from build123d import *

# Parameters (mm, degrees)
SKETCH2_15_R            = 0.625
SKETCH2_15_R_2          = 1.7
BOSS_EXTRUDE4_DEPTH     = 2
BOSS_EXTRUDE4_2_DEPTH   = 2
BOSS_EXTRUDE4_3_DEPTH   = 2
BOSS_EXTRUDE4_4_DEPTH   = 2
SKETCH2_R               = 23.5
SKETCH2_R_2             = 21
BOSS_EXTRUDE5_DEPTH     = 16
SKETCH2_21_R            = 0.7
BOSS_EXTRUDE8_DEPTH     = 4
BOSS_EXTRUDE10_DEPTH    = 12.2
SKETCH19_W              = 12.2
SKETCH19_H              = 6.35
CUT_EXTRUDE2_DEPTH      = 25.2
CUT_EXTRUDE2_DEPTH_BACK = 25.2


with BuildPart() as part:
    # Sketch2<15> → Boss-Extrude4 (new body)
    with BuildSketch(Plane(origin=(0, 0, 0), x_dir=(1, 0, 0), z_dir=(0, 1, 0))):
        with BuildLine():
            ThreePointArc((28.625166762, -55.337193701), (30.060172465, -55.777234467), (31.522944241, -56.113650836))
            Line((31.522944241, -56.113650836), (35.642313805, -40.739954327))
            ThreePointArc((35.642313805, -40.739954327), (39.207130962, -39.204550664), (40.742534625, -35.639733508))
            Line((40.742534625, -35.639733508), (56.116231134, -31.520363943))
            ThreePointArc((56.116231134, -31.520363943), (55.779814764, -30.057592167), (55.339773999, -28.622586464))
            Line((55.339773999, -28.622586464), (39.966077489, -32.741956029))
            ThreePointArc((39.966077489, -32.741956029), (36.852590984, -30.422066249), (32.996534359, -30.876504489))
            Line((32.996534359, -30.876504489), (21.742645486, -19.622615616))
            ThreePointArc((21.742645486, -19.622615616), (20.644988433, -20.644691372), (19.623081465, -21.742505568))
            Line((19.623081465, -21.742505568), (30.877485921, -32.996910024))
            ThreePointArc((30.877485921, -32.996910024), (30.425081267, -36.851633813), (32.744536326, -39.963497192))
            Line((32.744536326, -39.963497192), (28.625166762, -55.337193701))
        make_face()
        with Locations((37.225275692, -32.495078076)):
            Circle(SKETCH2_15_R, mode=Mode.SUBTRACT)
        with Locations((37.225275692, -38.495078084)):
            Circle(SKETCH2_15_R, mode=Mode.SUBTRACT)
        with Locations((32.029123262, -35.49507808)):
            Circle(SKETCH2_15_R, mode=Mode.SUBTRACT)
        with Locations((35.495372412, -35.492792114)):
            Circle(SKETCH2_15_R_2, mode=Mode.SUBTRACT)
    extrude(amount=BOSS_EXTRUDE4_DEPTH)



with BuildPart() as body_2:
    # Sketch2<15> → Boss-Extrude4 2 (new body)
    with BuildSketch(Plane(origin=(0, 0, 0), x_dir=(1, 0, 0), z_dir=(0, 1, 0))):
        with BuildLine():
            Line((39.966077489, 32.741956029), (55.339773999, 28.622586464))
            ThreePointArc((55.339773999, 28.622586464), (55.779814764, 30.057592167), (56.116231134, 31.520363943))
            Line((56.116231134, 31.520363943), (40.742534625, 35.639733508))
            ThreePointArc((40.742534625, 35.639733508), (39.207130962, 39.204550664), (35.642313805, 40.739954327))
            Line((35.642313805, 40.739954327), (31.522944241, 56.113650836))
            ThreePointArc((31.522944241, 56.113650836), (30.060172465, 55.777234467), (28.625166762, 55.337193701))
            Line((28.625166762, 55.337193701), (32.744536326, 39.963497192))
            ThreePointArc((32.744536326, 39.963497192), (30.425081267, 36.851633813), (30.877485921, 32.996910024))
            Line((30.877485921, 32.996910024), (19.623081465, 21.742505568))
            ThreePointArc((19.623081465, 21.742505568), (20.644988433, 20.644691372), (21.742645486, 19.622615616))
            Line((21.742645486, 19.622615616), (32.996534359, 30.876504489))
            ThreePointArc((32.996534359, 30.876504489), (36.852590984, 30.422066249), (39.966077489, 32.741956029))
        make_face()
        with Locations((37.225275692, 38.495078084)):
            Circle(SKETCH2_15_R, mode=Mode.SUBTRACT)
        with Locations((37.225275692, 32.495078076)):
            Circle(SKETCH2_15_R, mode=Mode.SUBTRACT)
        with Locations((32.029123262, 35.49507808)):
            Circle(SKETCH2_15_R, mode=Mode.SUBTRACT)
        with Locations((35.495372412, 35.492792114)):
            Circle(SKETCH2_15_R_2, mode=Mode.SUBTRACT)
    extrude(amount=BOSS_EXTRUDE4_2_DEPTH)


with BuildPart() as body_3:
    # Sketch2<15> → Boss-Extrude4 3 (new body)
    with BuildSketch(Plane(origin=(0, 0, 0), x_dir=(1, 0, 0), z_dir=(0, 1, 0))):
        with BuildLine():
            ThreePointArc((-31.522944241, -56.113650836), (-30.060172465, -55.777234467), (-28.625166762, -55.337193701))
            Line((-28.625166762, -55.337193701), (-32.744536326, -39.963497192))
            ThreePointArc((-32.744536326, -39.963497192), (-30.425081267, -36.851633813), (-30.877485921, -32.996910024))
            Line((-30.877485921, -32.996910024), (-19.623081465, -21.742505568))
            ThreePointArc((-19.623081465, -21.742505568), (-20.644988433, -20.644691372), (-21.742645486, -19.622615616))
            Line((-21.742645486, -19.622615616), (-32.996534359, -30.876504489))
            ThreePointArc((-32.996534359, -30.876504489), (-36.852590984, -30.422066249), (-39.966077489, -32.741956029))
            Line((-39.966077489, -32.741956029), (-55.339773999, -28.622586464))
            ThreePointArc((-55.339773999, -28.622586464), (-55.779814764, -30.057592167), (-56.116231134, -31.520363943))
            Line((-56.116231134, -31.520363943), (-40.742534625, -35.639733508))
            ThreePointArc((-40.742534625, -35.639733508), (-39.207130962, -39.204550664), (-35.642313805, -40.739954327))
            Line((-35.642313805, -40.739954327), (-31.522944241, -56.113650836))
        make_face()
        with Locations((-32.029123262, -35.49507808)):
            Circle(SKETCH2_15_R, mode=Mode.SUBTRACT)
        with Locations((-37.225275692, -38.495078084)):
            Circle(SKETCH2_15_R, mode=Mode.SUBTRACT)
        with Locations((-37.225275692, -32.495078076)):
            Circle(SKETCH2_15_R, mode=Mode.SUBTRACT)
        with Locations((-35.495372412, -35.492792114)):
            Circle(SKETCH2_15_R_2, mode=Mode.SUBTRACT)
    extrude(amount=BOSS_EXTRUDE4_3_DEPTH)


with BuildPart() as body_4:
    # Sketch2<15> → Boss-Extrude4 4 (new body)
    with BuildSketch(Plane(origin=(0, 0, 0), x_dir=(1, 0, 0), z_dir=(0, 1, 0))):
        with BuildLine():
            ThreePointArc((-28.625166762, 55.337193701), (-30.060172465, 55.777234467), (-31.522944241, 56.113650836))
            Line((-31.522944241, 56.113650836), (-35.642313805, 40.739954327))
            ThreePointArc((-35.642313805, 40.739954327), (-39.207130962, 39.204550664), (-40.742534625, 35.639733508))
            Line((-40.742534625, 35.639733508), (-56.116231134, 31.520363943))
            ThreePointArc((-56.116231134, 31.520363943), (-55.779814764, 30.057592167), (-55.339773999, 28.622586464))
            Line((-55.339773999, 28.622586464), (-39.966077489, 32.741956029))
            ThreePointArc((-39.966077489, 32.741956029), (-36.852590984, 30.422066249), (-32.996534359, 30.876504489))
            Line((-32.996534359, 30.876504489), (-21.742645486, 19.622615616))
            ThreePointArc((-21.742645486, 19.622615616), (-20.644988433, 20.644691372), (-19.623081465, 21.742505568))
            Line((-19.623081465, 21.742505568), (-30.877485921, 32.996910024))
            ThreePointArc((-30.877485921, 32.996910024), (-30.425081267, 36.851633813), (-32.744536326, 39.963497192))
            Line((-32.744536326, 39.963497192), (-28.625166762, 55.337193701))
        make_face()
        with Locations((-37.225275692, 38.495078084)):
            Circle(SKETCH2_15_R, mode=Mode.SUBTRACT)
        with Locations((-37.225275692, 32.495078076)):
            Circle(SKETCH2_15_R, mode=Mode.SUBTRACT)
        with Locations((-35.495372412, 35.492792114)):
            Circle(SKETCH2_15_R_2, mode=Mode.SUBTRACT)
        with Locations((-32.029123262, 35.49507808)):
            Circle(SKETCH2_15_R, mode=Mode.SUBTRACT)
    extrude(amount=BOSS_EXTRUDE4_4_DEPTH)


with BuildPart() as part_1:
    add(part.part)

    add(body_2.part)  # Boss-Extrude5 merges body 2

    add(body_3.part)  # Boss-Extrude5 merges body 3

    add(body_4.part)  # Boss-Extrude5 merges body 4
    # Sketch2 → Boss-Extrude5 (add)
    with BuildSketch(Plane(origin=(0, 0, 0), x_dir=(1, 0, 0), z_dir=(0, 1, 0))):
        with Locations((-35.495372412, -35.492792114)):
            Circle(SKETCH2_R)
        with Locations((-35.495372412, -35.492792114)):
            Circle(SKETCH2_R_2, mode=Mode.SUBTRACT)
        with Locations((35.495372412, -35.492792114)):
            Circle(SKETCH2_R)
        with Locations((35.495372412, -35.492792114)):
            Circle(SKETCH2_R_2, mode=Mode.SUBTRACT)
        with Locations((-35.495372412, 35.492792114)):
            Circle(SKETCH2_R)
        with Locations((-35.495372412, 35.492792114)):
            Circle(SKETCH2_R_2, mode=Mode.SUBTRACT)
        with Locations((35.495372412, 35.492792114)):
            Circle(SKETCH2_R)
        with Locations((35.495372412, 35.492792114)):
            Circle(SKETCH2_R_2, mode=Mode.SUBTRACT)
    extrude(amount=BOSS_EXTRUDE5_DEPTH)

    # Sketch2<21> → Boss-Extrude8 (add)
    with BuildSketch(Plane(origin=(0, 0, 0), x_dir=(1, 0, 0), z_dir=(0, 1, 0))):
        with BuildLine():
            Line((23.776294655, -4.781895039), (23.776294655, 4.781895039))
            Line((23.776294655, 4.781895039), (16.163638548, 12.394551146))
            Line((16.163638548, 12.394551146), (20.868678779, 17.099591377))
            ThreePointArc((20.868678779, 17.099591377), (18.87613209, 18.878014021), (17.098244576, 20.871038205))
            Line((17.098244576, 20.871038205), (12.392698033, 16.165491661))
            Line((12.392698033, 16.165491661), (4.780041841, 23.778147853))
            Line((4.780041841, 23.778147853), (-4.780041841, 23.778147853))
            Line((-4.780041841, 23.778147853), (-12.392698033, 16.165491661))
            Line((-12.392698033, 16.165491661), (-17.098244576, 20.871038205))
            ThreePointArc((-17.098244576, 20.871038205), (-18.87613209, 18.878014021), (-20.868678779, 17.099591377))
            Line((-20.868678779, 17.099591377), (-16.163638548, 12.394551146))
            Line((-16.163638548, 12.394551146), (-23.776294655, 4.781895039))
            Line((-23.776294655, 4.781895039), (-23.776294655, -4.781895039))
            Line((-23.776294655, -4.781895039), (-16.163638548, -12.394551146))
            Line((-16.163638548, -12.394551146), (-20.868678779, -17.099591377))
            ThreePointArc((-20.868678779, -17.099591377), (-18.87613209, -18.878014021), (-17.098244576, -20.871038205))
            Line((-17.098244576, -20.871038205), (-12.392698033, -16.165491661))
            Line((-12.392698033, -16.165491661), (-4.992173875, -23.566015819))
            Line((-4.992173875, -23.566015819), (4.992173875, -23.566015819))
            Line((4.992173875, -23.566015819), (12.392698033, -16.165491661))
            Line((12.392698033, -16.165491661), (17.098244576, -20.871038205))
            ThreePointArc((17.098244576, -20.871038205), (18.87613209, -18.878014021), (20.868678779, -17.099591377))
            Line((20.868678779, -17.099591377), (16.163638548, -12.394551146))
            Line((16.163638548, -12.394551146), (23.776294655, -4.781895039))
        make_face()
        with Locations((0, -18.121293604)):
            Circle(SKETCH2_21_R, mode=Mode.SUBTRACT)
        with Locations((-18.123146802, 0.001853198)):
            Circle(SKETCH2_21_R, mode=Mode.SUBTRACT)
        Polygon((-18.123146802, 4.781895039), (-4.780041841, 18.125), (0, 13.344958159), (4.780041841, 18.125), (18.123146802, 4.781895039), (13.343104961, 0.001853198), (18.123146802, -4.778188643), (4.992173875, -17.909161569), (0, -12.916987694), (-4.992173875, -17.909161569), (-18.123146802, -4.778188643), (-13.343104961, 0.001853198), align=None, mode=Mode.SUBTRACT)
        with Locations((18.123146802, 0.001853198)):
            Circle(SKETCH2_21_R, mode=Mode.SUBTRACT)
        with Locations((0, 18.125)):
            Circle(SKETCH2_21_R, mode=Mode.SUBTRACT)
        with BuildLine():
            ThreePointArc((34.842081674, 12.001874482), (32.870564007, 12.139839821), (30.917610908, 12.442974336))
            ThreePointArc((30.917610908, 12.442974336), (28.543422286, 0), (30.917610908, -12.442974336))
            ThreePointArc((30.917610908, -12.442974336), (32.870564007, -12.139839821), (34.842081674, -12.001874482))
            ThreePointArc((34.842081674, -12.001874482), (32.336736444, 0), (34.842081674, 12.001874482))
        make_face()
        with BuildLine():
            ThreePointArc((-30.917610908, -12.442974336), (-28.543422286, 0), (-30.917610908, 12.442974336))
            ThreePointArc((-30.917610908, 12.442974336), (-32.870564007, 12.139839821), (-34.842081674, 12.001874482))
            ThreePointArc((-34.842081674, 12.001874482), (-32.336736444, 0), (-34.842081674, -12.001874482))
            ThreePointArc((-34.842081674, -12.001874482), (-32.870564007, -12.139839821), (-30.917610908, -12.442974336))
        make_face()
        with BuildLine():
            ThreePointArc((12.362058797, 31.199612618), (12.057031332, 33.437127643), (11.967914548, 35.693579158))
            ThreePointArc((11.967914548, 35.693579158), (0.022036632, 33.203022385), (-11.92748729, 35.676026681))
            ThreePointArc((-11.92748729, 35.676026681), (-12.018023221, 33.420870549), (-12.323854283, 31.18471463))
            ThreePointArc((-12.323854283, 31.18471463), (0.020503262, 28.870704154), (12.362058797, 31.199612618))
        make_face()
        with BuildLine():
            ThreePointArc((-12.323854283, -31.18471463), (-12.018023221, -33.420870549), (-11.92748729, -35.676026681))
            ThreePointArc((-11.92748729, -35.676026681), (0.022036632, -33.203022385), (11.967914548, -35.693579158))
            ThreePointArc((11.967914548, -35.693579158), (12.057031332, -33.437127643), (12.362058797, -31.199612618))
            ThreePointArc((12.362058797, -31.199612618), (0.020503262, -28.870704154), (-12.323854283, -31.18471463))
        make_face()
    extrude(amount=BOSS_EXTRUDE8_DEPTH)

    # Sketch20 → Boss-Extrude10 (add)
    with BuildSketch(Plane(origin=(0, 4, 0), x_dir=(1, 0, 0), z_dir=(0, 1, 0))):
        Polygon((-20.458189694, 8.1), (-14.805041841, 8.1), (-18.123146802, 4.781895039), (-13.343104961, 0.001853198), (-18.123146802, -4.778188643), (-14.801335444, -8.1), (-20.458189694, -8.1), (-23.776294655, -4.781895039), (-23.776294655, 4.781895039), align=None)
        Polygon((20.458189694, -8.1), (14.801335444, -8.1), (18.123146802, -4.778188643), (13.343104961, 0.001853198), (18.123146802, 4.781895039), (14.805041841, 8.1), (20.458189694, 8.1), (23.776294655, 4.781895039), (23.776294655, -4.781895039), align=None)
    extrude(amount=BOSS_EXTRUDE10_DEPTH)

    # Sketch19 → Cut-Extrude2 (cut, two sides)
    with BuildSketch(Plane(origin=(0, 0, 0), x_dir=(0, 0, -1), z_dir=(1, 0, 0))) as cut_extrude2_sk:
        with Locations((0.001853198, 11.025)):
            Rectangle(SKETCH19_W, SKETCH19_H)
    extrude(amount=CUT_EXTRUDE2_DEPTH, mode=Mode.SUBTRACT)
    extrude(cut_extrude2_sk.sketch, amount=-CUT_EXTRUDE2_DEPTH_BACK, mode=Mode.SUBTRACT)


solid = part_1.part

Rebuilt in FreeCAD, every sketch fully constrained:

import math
import FreeCAD as App
import Part
import Sketcher
from FreeCAD import Vector
Q = App.Units.Quantity


def add_polygon(sketch, points):
    """Adds a closed chain of lines whose ends are joined by coincident constraints."""
    first, n = sketch.GeometryCount, len(points)
    for a, b in zip(points, points[1:] + points[:1]):
        sketch.addGeometry(Part.LineSegment(App.Vector(*a, 0), App.Vector(*b, 0)), False)
    for i in range(n):
        sketch.addConstraint(Sketcher.Constraint("Coincident", first + i, 2, first + (i + 1) % n, 1))

doc = App.newDocument("Part")
body = doc.addObject("PartDesign::Body", "Body")

# Sketch on XZ plane
sketch1 = body.newObject("Sketcher::SketchObject", "Sketch")
sketch1.AttachmentSupport = (doc.getObject("XZ_Plane"), [""])
sketch1.MapMode = "FlatFace"
sketch1.addGeometry([
    Part.ArcOfCircle(Part.Circle(Vector(35.5, 35.5, 0), Vector(0, 0, 1), 21), math.radians(100.9), math.radians(109.1)),  # 0
    Part.LineSegment(Vector(31.5, 56.1, 0), Vector(35.6, 40.7, 0)),  # 1
    Part.ArcOfCircle(Part.Circle(Vector(35.5, 35.5, 0), Vector(0, 0, 1), 5.2), math.radians(2), math.radians(88)),  # 2
    Part.LineSegment(Vector(40.7, 35.6, 0), Vector(56.1, 31.5, 0)),  # 3
    Part.ArcOfCircle(Part.Circle(Vector(35.5, 35.5, 0), Vector(0, 0, 1), 21), math.radians(-19.1), math.radians(-10.9)),  # 4
    Part.LineSegment(Vector(55.3, 28.6, 0), Vector(40, 32.7, 0)),  # 5
    Part.ArcOfCircle(Part.Circle(Vector(35.5, 35.5, 0), Vector(0, 0, 1), 5.2), math.radians(-118), math.radians(-32)),  # 6
    Part.LineSegment(Vector(33, 30.9, 0), Vector(21.7, 19.6, 0)),  # 7
    Part.ArcOfCircle(Part.Circle(Vector(35.5, 35.5, 0), Vector(0, 0, 1), 21), math.radians(-139.1), math.radians(-130.91)),  # 8
    Part.LineSegment(Vector(19.6, 21.7, 0), Vector(30.9, 33, 0)),  # 9
    Part.ArcOfCircle(Part.Circle(Vector(35.5, 35.5, 0), Vector(0, 0, 1), 5.2), math.radians(122), math.radians(208)),  # 10
    Part.LineSegment(Vector(32.7, 40, 0), Vector(28.6, 55.3, 0)),  # 11
    Part.Circle(Vector(32, 35.5, 0), Vector(0, 0, 1), 0.6),  # 12
    Part.Circle(Vector(37.2, 38.5, 0), Vector(0, 0, 1), 0.6),  # 13
    Part.Circle(Vector(35.5, 35.5, 0), Vector(0, 0, 1), 1.7),  # 14
    Part.Circle(Vector(37.2, 32.5, 0), Vector(0, 0, 1), 0.6),  # 15
], False)
sketch1.addConstraint([
    Sketcher.Constraint("Coincident", 0, 1, 1, 1),
    Sketcher.Constraint("Coincident", 1, 2, 2, 2),
    Sketcher.Constraint("Coincident", 2, 1, 3, 1),
    Sketcher.Constraint("Coincident", 3, 2, 4, 2),
    Sketcher.Constraint("Coincident", 4, 1, 5, 1),
    Sketcher.Constraint("Coincident", 5, 2, 6, 2),
    Sketcher.Constraint("Coincident", 6, 1, 7, 1),
    Sketcher.Constraint("Coincident", 7, 2, 8, 2),
    Sketcher.Constraint("Coincident", 8, 1, 9, 1),
    Sketcher.Constraint("Coincident", 9, 2, 10, 2),
    Sketcher.Constraint("Coincident", 10, 1, 11, 1),
    Sketcher.Constraint("Coincident", 11, 2, 0, 2),
    Sketcher.Constraint("Coincident", 2, 3, 0, 3),
    Sketcher.Constraint("Coincident", 4, 3, 0, 3),
    Sketcher.Constraint("Coincident", 6, 3, 0, 3),
    Sketcher.Constraint("Coincident", 8, 3, 0, 3),
    Sketcher.Constraint("Coincident", 10, 3, 0, 3),
    Sketcher.Constraint("Coincident", 14, 3, 0, 3),
    Sketcher.Constraint("Equal", 0, 4),
    Sketcher.Constraint("Equal", 2, 6),
    Sketcher.Constraint("Equal", 4, 8),
    Sketcher.Constraint("Equal", 6, 10),
    Sketcher.Constraint("Equal", 12, 13),
    Sketcher.Constraint("Equal", 13, 15),
    Sketcher.Constraint("Parallel", 3, 5),
    Sketcher.Constraint("Parallel", 7, 9),
    Sketcher.Constraint("Parallel", 1, 11),
    Sketcher.Constraint("Vertical", 13, 3, 15, 3),
    Sketcher.Constraint("Equal", 1, 3),
    Sketcher.Constraint("Equal", 3, 5),
    Sketcher.Constraint("Equal", 5, 11),
    Sketcher.Constraint("Radius", 0, Q("21 mm")),
    Sketcher.Constraint("Diameter", 14, Q("3.4 mm")),
    Sketcher.Constraint("Diameter", 12, Q("1.25 mm")),
    Sketcher.Constraint("Angle", 1, Q("-75 deg")),
    Sketcher.Constraint("Angle", 3, Q("-15 deg")),
    Sketcher.Constraint("Angle", 7, Q("-135 deg")),
    Sketcher.Constraint("Radius", 2, Q("5.249219 mm")),
    Sketcher.Constraint("DistanceY", 8, 1, 6, 1, Q("9.133999 mm")),
    Sketcher.Constraint("DistanceX", 15, 3, 4, 1, Q("18.114498 mm")),
    Sketcher.Constraint("DistanceX", 8, 3, 4, 1, Q("19.844401 mm")),
    Sketcher.Constraint("Distance", 9, Q("15.916131 mm")),
    Sketcher.Constraint("DistanceY", -1, 1, 12, 3, Q("35.495078 mm")),
    Sketcher.Constraint("DistanceY", -1, 1, 13, 3, Q("38.495078 mm")),
    Sketcher.Constraint("DistanceY", -1, 1, 15, 3, Q("32.495078 mm")),
    Sketcher.Constraint("DistanceY", -1, 1, 0, 1, Q("56.113651 mm")),
    Sketcher.Constraint("DistanceX", -1, 1, 3, 2, Q("56.116231 mm")),
    Sketcher.Constraint("DistanceX", 12, 3, 4, 3, Q("3.466249 mm")),
])
pad1 = body.newObject("PartDesign::Pad", "Pad")
pad1.Profile = sketch1
pad1.Length = 2
pad1.Reversed = True
body2 = doc.addObject("PartDesign::Body", "Body001")

# Sketch on XZ plane
sketch2 = body2.newObject("Sketcher::SketchObject", "Sketch001")
sketch2.AttachmentSupport = (doc.getObject("XZ_Plane001"), [""])
sketch2.MapMode = "FlatFace"
sketch2.addGeometry([
    Part.LineSegment(Vector(40, -32.7, 0), Vector(55.3, -28.6, 0)),  # 0
    Part.ArcOfCircle(Part.Circle(Vector(35.5, -35.5, 0), Vector(0, 0, 1), 21), math.radians(10.9), math.radians(19.1)),  # 1
    Part.LineSegment(Vector(56.1, -31.5, 0), Vector(40.7, -35.6, 0)),  # 2
    Part.ArcOfCircle(Part.Circle(Vector(35.5, -35.5, 0), Vector(0, 0, 1), 5.2), math.radians(-88), math.radians(-2)),  # 3
    Part.LineSegment(Vector(35.6, -40.7, 0), Vector(31.5, -56.1, 0)),  # 4
    Part.ArcOfCircle(Part.Circle(Vector(35.5, -35.5, 0), Vector(0, 0, 1), 21), math.radians(-109.1), math.radians(-100.9)),  # 5
    Part.LineSegment(Vector(28.6, -55.3, 0), Vector(32.7, -40, 0)),  # 6
    Part.ArcOfCircle(Part.Circle(Vector(35.5, -35.5, 0), Vector(0, 0, 1), 5.2), math.radians(152), math.radians(238)),  # 7
    Part.LineSegment(Vector(30.9, -33, 0), Vector(19.6, -21.7, 0)),  # 8
    Part.ArcOfCircle(Part.Circle(Vector(35.5, -35.5, 0), Vector(0, 0, 1), 21), math.radians(130.91), math.radians(139.1)),  # 9
    Part.LineSegment(Vector(21.7, -19.6, 0), Vector(33, -30.9, 0)),  # 10
    Part.ArcOfCircle(Part.Circle(Vector(35.5, -35.5, 0), Vector(0, 0, 1), 5.2), math.radians(32), math.radians(118)),  # 11
    Part.Circle(Vector(32, -35.5, 0), Vector(0, 0, 1), 0.6),  # 12
    Part.Circle(Vector(37.2, -32.5, 0), Vector(0, 0, 1), 0.6),  # 13
    Part.Circle(Vector(35.5, -35.5, 0), Vector(0, 0, 1), 1.7),  # 14
    Part.Circle(Vector(37.2, -38.5, 0), Vector(0, 0, 1), 0.6),  # 15
], False)
sketch2.addConstraint([
    Sketcher.Constraint("Coincident", 0, 2, 1, 2),
    Sketcher.Constraint("Coincident", 1, 1, 2, 1),
    Sketcher.Constraint("Coincident", 2, 2, 3, 2),
    Sketcher.Constraint("Coincident", 3, 1, 4, 1),
    Sketcher.Constraint("Coincident", 4, 2, 5, 2),
    Sketcher.Constraint("Coincident", 5, 1, 6, 1),
    Sketcher.Constraint("Coincident", 6, 2, 7, 2),
    Sketcher.Constraint("Coincident", 7, 1, 8, 1),
    Sketcher.Constraint("Coincident", 8, 2, 9, 2),
    Sketcher.Constraint("Coincident", 9, 1, 10, 1),
    Sketcher.Constraint("Coincident", 10, 2, 11, 2),
    Sketcher.Constraint("Coincident", 11, 1, 0, 1),
    Sketcher.Constraint("Coincident", 3, 3, 1, 3),
    Sketcher.Constraint("Coincident", 5, 3, 1, 3),
    Sketcher.Constraint("Coincident", 7, 3, 1, 3),
    Sketcher.Constraint("Coincident", 9, 3, 1, 3),
    Sketcher.Constraint("Coincident", 11, 3, 1, 3),
    Sketcher.Constraint("Coincident", 14, 3, 1, 3),
    Sketcher.Constraint("Equal", 1, 5),
    Sketcher.Constraint("Equal", 3, 7),
    Sketcher.Constraint("Equal", 5, 9),
    Sketcher.Constraint("Equal", 7, 11),
    Sketcher.Constraint("Equal", 12, 13),
    Sketcher.Constraint("Equal", 13, 15),
    Sketcher.Constraint("Parallel", 0, 2),
    Sketcher.Constraint("Parallel", 4, 6),
    Sketcher.Constraint("Parallel", 8, 10),
    Sketcher.Constraint("Vertical", 13, 3, 15, 3),
    Sketcher.Constraint("Equal", 0, 2),
    Sketcher.Constraint("Equal", 2, 4),
    Sketcher.Constraint("Equal", 4, 6),
    Sketcher.Constraint("Radius", 1, Q("21 mm")),
    Sketcher.Constraint("Diameter", 14, Q("3.4 mm")),
    Sketcher.Constraint("Diameter", 12, Q("1.25 mm")),
    Sketcher.Constraint("Angle", 0, Q("15 deg")),
    Sketcher.Constraint("Angle", 4, Q("-105 deg")),
    Sketcher.Constraint("Angle", 8, Q("135 deg")),
    Sketcher.Constraint("Radius", 3, Q("5.249219 mm")),
    Sketcher.Constraint("DistanceX", 13, 3, 0, 2, Q("18.114498 mm")),
    Sketcher.Constraint("DistanceX", 9, 3, 0, 2, Q("19.844401 mm")),
    Sketcher.Constraint("Distance", 8, Q("15.916131 mm")),
    Sketcher.Constraint("DistanceY", 12, 3, -1, 1, Q("35.495078 mm")),
    Sketcher.Constraint("DistanceY", 13, 3, -1, 1, Q("32.495078 mm")),
    Sketcher.Constraint("DistanceY", 15, 3, -1, 1, Q("38.495078 mm")),
    Sketcher.Constraint("DistanceX", -1, 1, 1, 1, Q("56.116231 mm")),
    Sketcher.Constraint("DistanceY", 4, 2, -1, 1, Q("56.113651 mm")),
    Sketcher.Constraint("DistanceX", 12, 3, 1, 3, Q("3.466249 mm")),
    Sketcher.Constraint("DistanceY", 8, 2, 9, 1, Q("2.11989 mm")),
])
pad2 = body2.newObject("PartDesign::Pad", "Pad001")
pad2.Profile = sketch2
pad2.Length = 2
pad2.Reversed = True
body3 = doc.addObject("PartDesign::Body", "Body002")

# Sketch on XZ plane
sketch3 = body3.newObject("Sketcher::SketchObject", "Sketch002")
sketch3.AttachmentSupport = (doc.getObject("XZ_Plane002"), [""])
sketch3.MapMode = "FlatFace"
sketch3.addGeometry([
    Part.ArcOfCircle(Part.Circle(Vector(-35.5, 35.5, 0), Vector(0, 0, 1), 21), math.radians(70.9), math.radians(79.1)),  # 0
    Part.LineSegment(Vector(-28.6, 55.3, 0), Vector(-32.7, 40, 0)),  # 1
    Part.ArcOfCircle(Part.Circle(Vector(-35.5, 35.5, 0), Vector(0, 0, 1), 5.2), math.radians(-28), math.radians(58)),  # 2
    Part.LineSegment(Vector(-30.9, 33, 0), Vector(-19.6, 21.7, 0)),  # 3
    Part.ArcOfCircle(Part.Circle(Vector(-35.5, 35.5, 0), Vector(0, 0, 1), 21), math.radians(-49.09), math.radians(-40.9)),  # 4
    Part.LineSegment(Vector(-21.7, 19.6, 0), Vector(-33, 30.9, 0)),  # 5
    Part.ArcOfCircle(Part.Circle(Vector(-35.5, 35.5, 0), Vector(0, 0, 1), 5.2), math.radians(-148), math.radians(-62)),  # 6
    Part.LineSegment(Vector(-40, 32.7, 0), Vector(-55.3, 28.6, 0)),  # 7
    Part.ArcOfCircle(Part.Circle(Vector(-35.5, 35.5, 0), Vector(0, 0, 1), 21), math.radians(-169.1), math.radians(-160.9)),  # 8
    Part.LineSegment(Vector(-56.1, 31.5, 0), Vector(-40.7, 35.6, 0)),  # 9
    Part.ArcOfCircle(Part.Circle(Vector(-35.5, 35.5, 0), Vector(0, 0, 1), 5.2), math.radians(92), math.radians(178)),  # 10
    Part.LineSegment(Vector(-35.6, 40.7, 0), Vector(-31.5, 56.1, 0)),  # 11
    Part.Circle(Vector(-37.2, 38.5, 0), Vector(0, 0, 1), 0.6),  # 12
    Part.Circle(Vector(-32, 35.5, 0), Vector(0, 0, 1), 0.6),  # 13
    Part.Circle(Vector(-35.5, 35.5, 0), Vector(0, 0, 1), 1.7),  # 14
    Part.Circle(Vector(-37.2, 32.5, 0), Vector(0, 0, 1), 0.6),  # 15
], False)
sketch3.addConstraint([
    Sketcher.Constraint("Coincident", 0, 1, 1, 1),
    Sketcher.Constraint("Coincident", 1, 2, 2, 2),
    Sketcher.Constraint("Coincident", 2, 1, 3, 1),
    Sketcher.Constraint("Coincident", 3, 2, 4, 2),
    Sketcher.Constraint("Coincident", 4, 1, 5, 1),
    Sketcher.Constraint("Coincident", 5, 2, 6, 2),
    Sketcher.Constraint("Coincident", 6, 1, 7, 1),
    Sketcher.Constraint("Coincident", 7, 2, 8, 2),
    Sketcher.Constraint("Coincident", 8, 1, 9, 1),
    Sketcher.Constraint("Coincident", 9, 2, 10, 2),
    Sketcher.Constraint("Coincident", 10, 1, 11, 1),
    Sketcher.Constraint("Coincident", 11, 2, 0, 2),
    Sketcher.Constraint("Coincident", 2, 3, 0, 3),
    Sketcher.Constraint("Coincident", 4, 3, 0, 3),
    Sketcher.Constraint("Coincident", 6, 3, 0, 3),
    Sketcher.Constraint("Coincident", 8, 3, 0, 3),
    Sketcher.Constraint("Coincident", 10, 3, 0, 3),
    Sketcher.Constraint("Coincident", 14, 3, 0, 3),
    Sketcher.Constraint("Equal", 0, 4),
    Sketcher.Constraint("Equal", 2, 6),
    Sketcher.Constraint("Equal", 4, 8),
    Sketcher.Constraint("Equal", 6, 10),
    Sketcher.Constraint("Equal", 12, 13),
    Sketcher.Constraint("Equal", 13, 15),
    Sketcher.Constraint("Parallel", 3, 5),
    Sketcher.Constraint("Parallel", 7, 9),
    Sketcher.Constraint("Parallel", 1, 11),
    Sketcher.Constraint("Vertical", 12, 3, 15, 3),
    Sketcher.Constraint("Equal", 1, 7),
    Sketcher.Constraint("Equal", 7, 9),
    Sketcher.Constraint("Equal", 9, 11),
    Sketcher.Constraint("Radius", 0, Q("21 mm")),
    Sketcher.Constraint("Diameter", 14, Q("3.4 mm")),
    Sketcher.Constraint("Diameter", 12, Q("1.25 mm")),
    Sketcher.Constraint("Angle", 1, Q("-105 deg")),
    Sketcher.Constraint("Angle", 3, Q("-45 deg")),
    Sketcher.Constraint("Angle", 7, Q("-165 deg")),
    Sketcher.Constraint("Radius", 2, Q("5.249219 mm")),
    Sketcher.Constraint("DistanceY", 0, 3, 0, 1, Q("19.844401 mm")),
    Sketcher.Constraint("DistanceX", 6, 1, 15, 3, Q("2.740802 mm")),
    Sketcher.Constraint("Distance", 3, Q("15.916131 mm")),
    Sketcher.Constraint("DistanceY", -1, 1, 12, 3, Q("38.495078 mm")),
    Sketcher.Constraint("DistanceY", -1, 1, 13, 3, Q("35.495078 mm")),
    Sketcher.Constraint("DistanceY", -1, 1, 15, 3, Q("32.495078 mm")),
    Sketcher.Constraint("DistanceY", -1, 1, 2, 1, Q("32.99691 mm")),
    Sketcher.Constraint("DistanceX", 3, 2, -1, 1, Q("19.623081 mm")),
    Sketcher.Constraint("DistanceX", 8, 3, 13, 3, Q("3.466249 mm")),
    Sketcher.Constraint("DistanceY", 4, 1, 3, 2, Q("2.11989 mm")),
])
pad3 = body3.newObject("PartDesign::Pad", "Pad002")
pad3.Profile = sketch3
pad3.Length = 2
pad3.Reversed = True
body4 = doc.addObject("PartDesign::Body", "Body003")

# Sketch on XZ plane
sketch4 = body4.newObject("Sketcher::SketchObject", "Sketch003")
sketch4.AttachmentSupport = (doc.getObject("XZ_Plane003"), [""])
sketch4.MapMode = "FlatFace"
sketch4.addGeometry([
    Part.ArcOfCircle(Part.Circle(Vector(-35.5, -35.5, 0), Vector(0, 0, 1), 21), math.radians(-79.1), math.radians(-70.9)),  # 0
    Part.LineSegment(Vector(-31.5, -56.1, 0), Vector(-35.6, -40.7, 0)),  # 1
    Part.ArcOfCircle(Part.Circle(Vector(-35.5, -35.5, 0), Vector(0, 0, 1), 5.2), math.radians(-178), math.radians(-92)),  # 2
    Part.LineSegment(Vector(-40.7, -35.6, 0), Vector(-56.1, -31.5, 0)),  # 3
    Part.ArcOfCircle(Part.Circle(Vector(-35.5, -35.5, 0), Vector(0, 0, 1), 21), math.radians(160.9), math.radians(169.1)),  # 4
    Part.LineSegment(Vector(-55.3, -28.6, 0), Vector(-40, -32.7, 0)),  # 5
    Part.ArcOfCircle(Part.Circle(Vector(-35.5, -35.5, 0), Vector(0, 0, 1), 5.2), math.radians(62), math.radians(148)),  # 6
    Part.LineSegment(Vector(-33, -30.9, 0), Vector(-21.7, -19.6, 0)),  # 7
    Part.ArcOfCircle(Part.Circle(Vector(-35.5, -35.5, 0), Vector(0, 0, 1), 21), math.radians(40.9), math.radians(49.09)),  # 8
    Part.LineSegment(Vector(-19.6, -21.7, 0), Vector(-30.9, -33, 0)),  # 9
    Part.ArcOfCircle(Part.Circle(Vector(-35.5, -35.5, 0), Vector(0, 0, 1), 5.2), math.radians(-58), math.radians(28)),  # 10
    Part.LineSegment(Vector(-32.7, -40, 0), Vector(-28.6, -55.3, 0)),  # 11
    Part.Circle(Vector(-37.2, -32.5, 0), Vector(0, 0, 1), 0.6),  # 12
    Part.Circle(Vector(-35.5, -35.5, 0), Vector(0, 0, 1), 1.7),  # 13
    Part.Circle(Vector(-32, -35.5, 0), Vector(0, 0, 1), 0.6),  # 14
    Part.Circle(Vector(-37.2, -38.5, 0), Vector(0, 0, 1), 0.6),  # 15
], False)
sketch4.addConstraint([
    Sketcher.Constraint("Coincident", 0, 1, 1, 1),
    Sketcher.Constraint("Coincident", 1, 2, 2, 2),
    Sketcher.Constraint("Coincident", 2, 1, 3, 1),
    Sketcher.Constraint("Coincident", 3, 2, 4, 2),
    Sketcher.Constraint("Coincident", 4, 1, 5, 1),
    Sketcher.Constraint("Coincident", 5, 2, 6, 2),
    Sketcher.Constraint("Coincident", 6, 1, 7, 1),
    Sketcher.Constraint("Coincident", 7, 2, 8, 2),
    Sketcher.Constraint("Coincident", 8, 1, 9, 1),
    Sketcher.Constraint("Coincident", 9, 2, 10, 2),
    Sketcher.Constraint("Coincident", 10, 1, 11, 1),
    Sketcher.Constraint("Coincident", 11, 2, 0, 2),
    Sketcher.Constraint("Coincident", 2, 3, 0, 3),
    Sketcher.Constraint("Coincident", 4, 3, 0, 3),
    Sketcher.Constraint("Coincident", 6, 3, 0, 3),
    Sketcher.Constraint("Coincident", 8, 3, 0, 3),
    Sketcher.Constraint("Coincident", 10, 3, 0, 3),
    Sketcher.Constraint("Coincident", 13, 3, 0, 3),
    Sketcher.Constraint("Equal", 0, 4),
    Sketcher.Constraint("Equal", 2, 6),
    Sketcher.Constraint("Equal", 4, 8),
    Sketcher.Constraint("Equal", 6, 10),
    Sketcher.Constraint("Equal", 12, 14),
    Sketcher.Constraint("Equal", 14, 15),
    Sketcher.Constraint("Parallel", 3, 5),
    Sketcher.Constraint("Parallel", 7, 9),
    Sketcher.Constraint("Parallel", 1, 11),
    Sketcher.Constraint("Vertical", 12, 3, 15, 3),
    Sketcher.Constraint("Equal", 1, 3),
    Sketcher.Constraint("Equal", 3, 5),
    Sketcher.Constraint("Equal", 5, 11),
    Sketcher.Constraint("Radius", 0, Q("21 mm")),
    Sketcher.Constraint("Diameter", 13, Q("3.4 mm")),
    Sketcher.Constraint("Diameter", 12, Q("1.25 mm")),
    Sketcher.Constraint("Angle", 1, Q("105 deg")),
    Sketcher.Constraint("Angle", 3, Q("165 deg")),
    Sketcher.Constraint("Angle", 7, Q("45 deg")),
    Sketcher.Constraint("Radius", 2, Q("5.249219 mm")),
    Sketcher.Constraint("DistanceY", 6, 1, 8, 1, Q("9.133999 mm")),
    Sketcher.Constraint("DistanceX", 4, 1, 12, 3, Q("18.114498 mm")),
    Sketcher.Constraint("DistanceX", 4, 1, 8, 3, Q("19.844401 mm")),
    Sketcher.Constraint("Distance", 9, Q("15.916131 mm")),
    Sketcher.Constraint("DistanceY", 12, 3, -1, 1, Q("32.495078 mm")),
    Sketcher.Constraint("DistanceY", 14, 3, -1, 1, Q("35.495078 mm")),
    Sketcher.Constraint("DistanceY", 15, 3, -1, 1, Q("38.495078 mm")),
    Sketcher.Constraint("DistanceY", 0, 1, -1, 1, Q("56.113651 mm")),
    Sketcher.Constraint("DistanceX", 3, 2, -1, 1, Q("56.116231 mm")),
    Sketcher.Constraint("DistanceX", 4, 3, 14, 3, Q("3.466249 mm")),
])
pad4 = body4.newObject("PartDesign::Pad", "Pad003")
pad4.Profile = sketch4
pad4.Length = 2
pad4.Reversed = True
body.AllowCompound = True
doc.recompute()

boolean = body.newObject("PartDesign::Boolean", "Boolean")
boolean.Type = "Fuse"
boolean.addObjects([body2])
doc.recompute()

boolean2 = body.newObject("PartDesign::Boolean", "Boolean001")
boolean2.Type = "Fuse"
boolean2.addObjects([body3])
doc.recompute()

boolean3 = body.newObject("PartDesign::Boolean", "Boolean002")
boolean3.Type = "Fuse"
boolean3.addObjects([body4])

# Sketch on XZ plane
sketch5 = body.newObject("Sketcher::SketchObject", "Sketch004")
sketch5.AttachmentSupport = (doc.getObject("XZ_Plane"), [""])
sketch5.MapMode = "FlatFace"
sketch5.addGeometry([
    Part.Circle(Vector(-35, 35, 0), Vector(0, 0, 1), 24),  # 0
    Part.Circle(Vector(-35, 35, 0), Vector(0, 0, 1), 21),  # 1
    Part.Circle(Vector(35, 35, 0), Vector(0, 0, 1), 24),  # 2
    Part.Circle(Vector(35, 35, 0), Vector(0, 0, 1), 21),  # 3
    Part.Circle(Vector(-35, -35, 0), Vector(0, 0, 1), 24),  # 4
    Part.Circle(Vector(-35, -35, 0), Vector(0, 0, 1), 21),  # 5
    Part.Circle(Vector(35, -35, 0), Vector(0, 0, 1), 24),  # 6
    Part.Circle(Vector(35, -35, 0), Vector(0, 0, 1), 21),  # 7
], False)
sketch5.addConstraint([
    Sketcher.Constraint("Coincident", 1, 3, 0, 3),
    Sketcher.Constraint("Coincident", 3, 3, 2, 3),
    Sketcher.Constraint("Coincident", 5, 3, 4, 3),
    Sketcher.Constraint("Coincident", 7, 3, 6, 3),
    Sketcher.Constraint("Equal", 0, 2),
    Sketcher.Constraint("Equal", 1, 3),
    Sketcher.Constraint("Equal", 2, 4),
    Sketcher.Constraint("Equal", 3, 5),
    Sketcher.Constraint("Equal", 4, 6),
    Sketcher.Constraint("Equal", 5, 7),
    Sketcher.Constraint("Symmetric", 2, 3, 4, 3, -1, 1),
    Sketcher.Constraint("Symmetric", 0, 3, 6, 3, -1, 1),
    Sketcher.Constraint("Symmetric", 0, 3, 2, 3, -2),
    Sketcher.Constraint("Diameter", 0, Q("47 mm")),
    Sketcher.Constraint("Diameter", 1, Q("42 mm")),
    Sketcher.Constraint("DistanceX", 0, 3, -1, 1, Q("35.495372 mm")),
    Sketcher.Constraint("DistanceY", -1, 1, 0, 3, Q("35.492792 mm")),
])
pad5 = body.newObject("PartDesign::Pad", "Pad004")
pad5.Profile = sketch5
pad5.Length = 16
pad5.Reversed = True

# Sketch on XZ plane
sketch6 = body.newObject("Sketcher::SketchObject", "Sketch005")
sketch6.AttachmentSupport = (doc.getObject("XZ_Plane"), [""])
sketch6.MapMode = "FlatFace"
sketch6.addGeometry(Part.LineSegment(Vector(23.8, 4.8, 0), Vector(23.8, -4.8, 0)), False)  # 0
sketch6.addGeometry(Part.LineSegment(Vector(23.8, -4.8, 0), Vector(16.2, -12.4, 0)), False)  # 1
sketch6.addGeometry(Part.LineSegment(Vector(16.2, -12.4, 0), Vector(20.9, -17.1, 0)), False)  # 2
sketch6.addGeometry(Part.ArcOfCircle(Part.Circle(Vector(35.5, -35.5, 0), Vector(0, 0, 1), 23.5), math.radians(128.49), math.radians(141.52)), False)  # 3
sketch6.addGeometry(Part.LineSegment(Vector(17.1, -20.9, 0), Vector(12.4, -16.2, 0)), False)  # 4
sketch6.addGeometry(Part.LineSegment(Vector(12.4, -16.2, 0), Vector(4.8, -23.8, 0)), False)  # 5
sketch6.addGeometry(Part.LineSegment(Vector(4.8, -23.8, 0), Vector(-4.8, -23.8, 0)), False)  # 6
sketch6.addGeometry(Part.LineSegment(Vector(-4.8, -23.8, 0), Vector(-12.4, -16.2, 0)), False)  # 7
sketch6.addGeometry(Part.LineSegment(Vector(-12.4, -16.2, 0), Vector(-17.1, -20.9, 0)), False)  # 8
sketch6.addGeometry(Part.ArcOfCircle(Part.Circle(Vector(-35.5, -35.5, 0), Vector(0, 0, 1), 23.5), math.radians(38.48), math.radians(51.51)), False)  # 9
sketch6.addGeometry(Part.LineSegment(Vector(-20.9, -17.1, 0), Vector(-16.2, -12.4, 0)), False)  # 10
sketch6.addGeometry(Part.LineSegment(Vector(-16.2, -12.4, 0), Vector(-23.8, -4.8, 0)), False)  # 11
sketch6.addGeometry(Part.LineSegment(Vector(-23.8, -4.8, 0), Vector(-23.8, 4.8, 0)), False)  # 12
sketch6.addGeometry(Part.LineSegment(Vector(-23.8, 4.8, 0), Vector(-16.2, 12.4, 0)), False)  # 13
sketch6.addGeometry(Part.LineSegment(Vector(-16.2, 12.4, 0), Vector(-20.9, 17.1, 0)), False)  # 14
sketch6.addGeometry(Part.ArcOfCircle(Part.Circle(Vector(-35.5, 35.5, 0), Vector(0, 0, 1), 23.5), math.radians(-51.51), math.radians(-38.48)), False)  # 15
sketch6.addGeometry(Part.LineSegment(Vector(-17.1, 20.9, 0), Vector(-12.4, 16.2, 0)), False)  # 16
sketch6.addGeometry(Part.LineSegment(Vector(-12.4, 16.2, 0), Vector(-5, 23.6, 0)), False)  # 17
sketch6.addGeometry(Part.LineSegment(Vector(-5, 23.6, 0), Vector(5, 23.6, 0)), False)  # 18
sketch6.addGeometry(Part.LineSegment(Vector(5, 23.6, 0), Vector(12.4, 16.2, 0)), False)  # 19
sketch6.addGeometry(Part.LineSegment(Vector(12.4, 16.2, 0), Vector(17.1, 20.9, 0)), False)  # 20
sketch6.addGeometry(Part.ArcOfCircle(Part.Circle(Vector(35.5, 35.5, 0), Vector(0, 0, 1), 23.5), math.radians(-141.52), math.radians(-128.49)), False)  # 21
sketch6.addGeometry(Part.LineSegment(Vector(20.9, 17.1, 0), Vector(16.2, 12.4, 0)), False)  # 22
sketch6.addGeometry(Part.LineSegment(Vector(16.2, 12.4, 0), Vector(23.8, 4.8, 0)), False)  # 23
sketch6.addGeometry(Part.Circle(Vector(0, 18.1, 0), Vector(0, 0, 1), 0.7), False)  # 24
sketch6.addGeometry(Part.Circle(Vector(-18.1, 0, 0), Vector(0, 0, 1), 0.7), False)  # 25
add_polygon(sketch6, [(-13.3, 0), (-18.1, -4.8), (-4.8, -18.1), (0, -13.3), (4.8, -18.1), (18.1, -4.8), (13.3, 0), (18.1, 4.8), (5, 17.9), (0, 12.9), (-5, 17.9), (-18.1, 4.8)])  # lines 26-37
sketch6.addGeometry(Part.Circle(Vector(18.1, 0, 0), Vector(0, 0, 1), 0.7), False)  # 38
sketch6.addGeometry(Part.Circle(Vector(0, -18.1, 0), Vector(0, 0, 1), 0.7), False)  # 39
sketch6.addGeometry(Part.ArcOfCircle(Part.Circle(Vector(35.5, -35.5, 0), Vector(0, 0, 1), 23.5), math.radians(91.59), math.radians(101.23)), False)  # 40
sketch6.addGeometry(Part.ArcOfCircle(Part.Circle(Vector(62.3, 0, 0), Vector(0, 0, 1), 33.8), math.radians(158), math.radians(202)), False)  # 41
sketch6.addGeometry(Part.ArcOfCircle(Part.Circle(Vector(35.5, 35.5, 0), Vector(0, 0, 1), 23.5), math.radians(-101.23), math.radians(-91.59)), False)  # 42
sketch6.addGeometry(Part.ArcOfCircle(Part.Circle(Vector(62.3, 0, 0), Vector(0, 0, 1), 30), math.radians(156), math.radians(204)), False)  # 43
sketch6.addGeometry(Part.ArcOfCircle(Part.Circle(Vector(-62.3, 0, 0), Vector(0, 0, 1), 33.8), math.radians(-22), math.radians(22)), False)  # 44
sketch6.addGeometry(Part.ArcOfCircle(Part.Circle(Vector(-35.5, -35.5, 0), Vector(0, 0, 1), 23.5), math.radians(78.77), math.radians(88.41)), False)  # 45
sketch6.addGeometry(Part.ArcOfCircle(Part.Circle(Vector(-62.3, 0, 0), Vector(0, 0, 1), 30), math.radians(-24), math.radians(24)), False)  # 46
sketch6.addGeometry(Part.ArcOfCircle(Part.Circle(Vector(-35.5, 35.5, 0), Vector(0, 0, 1), 23.5), math.radians(-88.41), math.radians(-78.77)), False)  # 47
sketch6.addGeometry(Part.ArcOfCircle(Part.Circle(Vector(35.5, -35.5, 0), Vector(0, 0, 1), 23.5), math.radians(169.49), math.radians(180.49)), False)  # 48
sketch6.addGeometry(Part.ArcOfCircle(Part.Circle(Vector(0, -63.2, 0), Vector(0, 0, 1), 30), math.radians(66), math.radians(113)), False)  # 49
sketch6.addGeometry(Part.ArcOfCircle(Part.Circle(Vector(-35.5, -35.5, 0), Vector(0, 0, 1), 23.6), math.radians(-0.45), math.radians(10.53)), False)  # 50
sketch6.addGeometry(Part.ArcOfCircle(Part.Circle(Vector(0, -62.8, 0), Vector(0, 0, 1), 34), math.radians(69), math.radians(111)), False)  # 51
sketch6.addGeometry(Part.ArcOfCircle(Part.Circle(Vector(-35.5, 35.5, 0), Vector(0, 0, 1), 23.6), math.radians(-10.53), math.radians(0.45)), False)  # 52
sketch6.addGeometry(Part.ArcOfCircle(Part.Circle(Vector(0, 63.2, 0), Vector(0, 0, 1), 30), math.radians(-113), math.radians(-66)), False)  # 53
sketch6.addGeometry(Part.ArcOfCircle(Part.Circle(Vector(35.5, 35.5, 0), Vector(0, 0, 1), 23.5), math.radians(179.51), math.radians(190.51)), False)  # 54
sketch6.addGeometry(Part.ArcOfCircle(Part.Circle(Vector(0, 62.8, 0), Vector(0, 0, 1), 34), math.radians(-111), math.radians(-69)), False)  # 55
sketch6.addConstraint([
    Sketcher.Constraint("Coincident", 0, 2, 1, 1),
    Sketcher.Constraint("Coincident", 1, 2, 2, 1),
    Sketcher.Constraint("Coincident", 2, 2, 3, 1),
    Sketcher.Constraint("Coincident", 3, 2, 4, 1),
    Sketcher.Constraint("Coincident", 4, 2, 5, 1),
    Sketcher.Constraint("Coincident", 5, 2, 6, 1),
    Sketcher.Constraint("Coincident", 6, 2, 7, 1),
    Sketcher.Constraint("Coincident", 7, 2, 8, 1),
    Sketcher.Constraint("Coincident", 8, 2, 9, 1),
    Sketcher.Constraint("Coincident", 9, 2, 10, 1),
    Sketcher.Constraint("Coincident", 10, 2, 11, 1),
    Sketcher.Constraint("Coincident", 11, 2, 12, 1),
    Sketcher.Constraint("Coincident", 12, 2, 13, 1),
    Sketcher.Constraint("Coincident", 13, 2, 14, 1),
    Sketcher.Constraint("Coincident", 14, 2, 15, 1),
    Sketcher.Constraint("Coincident", 15, 2, 16, 1),
    Sketcher.Constraint("Coincident", 16, 2, 17, 1),
    Sketcher.Constraint("Coincident", 17, 2, 18, 1),
    Sketcher.Constraint("Coincident", 18, 2, 19, 1),
    Sketcher.Constraint("Coincident", 19, 2, 20, 1),
    Sketcher.Constraint("Coincident", 20, 2, 21, 1),
    Sketcher.Constraint("Coincident", 21, 2, 22, 1),
    Sketcher.Constraint("Coincident", 22, 2, 23, 1),
    Sketcher.Constraint("Coincident", 23, 2, 0, 1),
    Sketcher.Constraint("Coincident", 40, 2, 41, 2),
    Sketcher.Constraint("Coincident", 41, 1, 42, 1),
    Sketcher.Constraint("Coincident", 42, 2, 43, 1),
    Sketcher.Constraint("Coincident", 43, 2, 40, 1),
    Sketcher.Constraint("Coincident", 44, 1, 45, 1),
    Sketcher.Constraint("Coincident", 45, 2, 46, 1),
    Sketcher.Constraint("Coincident", 46, 2, 47, 1),
    Sketcher.Constraint("Coincident", 47, 2, 44, 2),
    Sketcher.Constraint("Coincident", 48, 2, 49, 1),
    Sketcher.Constraint("Coincident", 49, 2, 50, 1),
    Sketcher.Constraint("Coincident", 50, 2, 51, 2),
    Sketcher.Constraint("Coincident", 51, 1, 48, 1),
    Sketcher.Constraint("Coincident", 52, 2, 53, 1),
    Sketcher.Constraint("Coincident", 53, 2, 54, 1),
    Sketcher.Constraint("Coincident", 54, 2, 55, 2),
    Sketcher.Constraint("Coincident", 55, 1, 52, 1),
    Sketcher.Constraint("Vertical", 0),
    Sketcher.Constraint("Horizontal", 6),
    Sketcher.Constraint("Vertical", 12),
    Sketcher.Constraint("Horizontal", 18),
    Sketcher.Constraint("Coincident", 40, 3, 3, 3),
    Sketcher.Constraint("Coincident", 42, 3, 21, 3),
    Sketcher.Constraint("Coincident", 43, 3, 41, 3),
    Sketcher.Constraint("Coincident", 45, 3, 9, 3),
    Sketcher.Constraint("Coincident", 46, 3, 44, 3),
    Sketcher.Constraint("Coincident", 47, 3, 15, 3),
    Sketcher.Constraint("Coincident", 48, 3, 3, 3),
    Sketcher.Constraint("Coincident", 50, 3, 9, 3),
    Sketcher.Constraint("Coincident", 52, 3, 15, 3),
    Sketcher.Constraint("Coincident", 54, 3, 21, 3),
    Sketcher.Constraint("Equal", 3, 9),
    Sketcher.Constraint("Equal", 9, 15),
    Sketcher.Constraint("Equal", 15, 21),
    Sketcher.Constraint("Equal", 24, 25),
    Sketcher.Constraint("Equal", 25, 38),
    Sketcher.Constraint("Equal", 38, 39),
    Sketcher.Constraint("Equal", 21, 40),
    Sketcher.Constraint("Equal", 40, 42),
    Sketcher.Constraint("Equal", 41, 44),
    Sketcher.Constraint("Equal", 42, 45),
    Sketcher.Constraint("Equal", 43, 46),
    Sketcher.Constraint("Equal", 45, 47),
    Sketcher.Constraint("Equal", 50, 52),
    Sketcher.Constraint("Equal", 49, 53),
    Sketcher.Constraint("Equal", 48, 54),
    Sketcher.Constraint("Equal", 51, 55),
    Sketcher.Constraint("Symmetric", 3, 3, 15, 3, -1, 1),
    Sketcher.Constraint("Symmetric", 9, 3, 21, 3, -1, 1),
    Sketcher.Constraint("Symmetric", 41, 3, 44, 3, -1, 1),
    Sketcher.Constraint("Symmetric", 49, 3, 53, 3, -1, 1),
    Sketcher.Constraint("Symmetric", 51, 3, 55, 3, -1, 1),
    Sketcher.Constraint("Symmetric", 0, 2, 12, 2, -1, 1),
    Sketcher.Constraint("Symmetric", 1, 2, 13, 2, -1, 1),
    Sketcher.Constraint("Symmetric", 4, 2, 16, 2, -1, 1),
    Sketcher.Constraint("Symmetric", 7, 2, 19, 2, -1, 1),
    Sketcher.Constraint("Symmetric", 10, 2, 22, 2, -1, 1),
    Sketcher.Constraint("Symmetric", 3, 3, 9, 3, -2),
    Sketcher.Constraint("Symmetric", 25, 3, 38, 3, -2),
    Sketcher.Constraint("Symmetric", 4, 2, 7, 2, -2),
    Sketcher.Constraint("Symmetric", 1, 2, 10, 2, -2),
    Sketcher.Constraint("Symmetric", 27, 2, 29, 2, -2),
    Sketcher.Constraint("Symmetric", 26, 2, 30, 2, -2),
    Sketcher.Constraint("Symmetric", 33, 2, 35, 2, -2),
    Sketcher.Constraint("Symmetric", 32, 2, 36, 2, -2),
    Sketcher.Constraint("Symmetric", 31, 2, 37, 2, -2),
    Sketcher.Constraint("PointOnObject", 24, 3, -2),
    Sketcher.Constraint("PointOnObject", 39, 3, -2),
    Sketcher.Constraint("PointOnObject", 41, 3, -1),
    Sketcher.Constraint("PointOnObject", 49, 3, -2),
    Sketcher.Constraint("PointOnObject", 51, 3, -2),
    Sketcher.Constraint("PointOnObject", 28, 2, -2),
    Sketcher.Constraint("PointOnObject", 34, 2, -2),
    Sketcher.Constraint("Perpendicular", 1, 2),
    Sketcher.Constraint("Parallel", 2, 4),
    Sketcher.Constraint("Perpendicular", 4, 5),
    Sketcher.Constraint("Perpendicular", 5, 7),
    Sketcher.Constraint("Perpendicular", 7, 8),
    Sketcher.Constraint("Parallel", 8, 10),
    Sketcher.Constraint("Perpendicular", 10, 11),
    Sketcher.Constraint("Perpendicular", 13, 14),
    Sketcher.Constraint("Parallel", 14, 16),
    Sketcher.Constraint("Perpendicular", 16, 17),
    Sketcher.Constraint("Perpendicular", 17, 19),
    Sketcher.Constraint("Perpendicular", 19, 20),
    Sketcher.Constraint("Parallel", 20, 22),
    Sketcher.Constraint("Perpendicular", 22, 23),
    Sketcher.Constraint("Perpendicular", 23, 26),
    Sketcher.Constraint("Perpendicular", 26, 27),
    Sketcher.Constraint("Perpendicular", 27, 28),
    Sketcher.Constraint("Perpendicular", 28, 29),
    Sketcher.Constraint("Perpendicular", 31, 32),
    Sketcher.Constraint("Perpendicular", 32, 33),
    Sketcher.Constraint("Perpendicular", 33, 34),
    Sketcher.Constraint("Horizontal", 11, 2, 26, 2),
    Sketcher.Constraint("Horizontal", 39, 3, 27, 2),
    Sketcher.Constraint("Horizontal", 38, 3, 31, 2),
    Sketcher.Constraint("Vertical", 25, 3, 26, 2),
    Sketcher.Constraint("Vertical", 6, 2, 27, 2),
    Sketcher.Constraint("Vertical", 30, 2, 32, 2),
    Sketcher.Constraint("Vertical", 18, 2, 33, 2),
    Sketcher.Constraint("Equal", 1, 5),
    Sketcher.Constraint("Equal", 26, 28),
    Sketcher.Constraint("Radius", 49, Q("30 mm")),
    Sketcher.Constraint("Diameter", 24, Q("1.4 mm")),
    Sketcher.Constraint("Radius", 3, Q("23.5 mm")),
    Sketcher.Constraint("Distance", 26, Q("6.76 mm")),
    Sketcher.Constraint("Distance", 27, Q("18.87 mm")),
    Sketcher.Constraint("Distance", 33, Q("18.57 mm")),
    Sketcher.Constraint("Radius", 41, Q("33.79352 mm")),
    Sketcher.Constraint("Radius", 51, Q("33.973839 mm")),
    Sketcher.Constraint("DistanceY", 39, 3, -1, 1, Q("18.125 mm")),
    Sketcher.Constraint("Radius", 43, Q("30.000206 mm")),
    Sketcher.Constraint("Radius", 48, Q("23.528315 mm")),
    Sketcher.Constraint("Radius", 50, Q("23.568597 mm")),
    Sketcher.Constraint("DistanceX", -1, 1, 4, 2, Q("12.392698 mm")),
    Sketcher.Constraint("Distance", 2, Q("6.653932 mm")),
    Sketcher.Constraint("DistanceX", -1, 1, 1, 2, Q("16.163639 mm")),
    Sketcher.Constraint("DistanceY", 3, 2, -1, 1, Q("20.871038 mm")),
    Sketcher.Constraint("DistanceY", 4, 2, -1, 1, Q("16.165492 mm")),
    Sketcher.Constraint("DistanceX", -1, 1, 40, 2, Q("30.917611 mm")),
    Sketcher.Constraint("DistanceY", 48, 2, -1, 1, Q("35.693579 mm")),
    Sketcher.Constraint("DistanceX", -1, 1, 51, 1, Q("12.362059 mm")),
    Sketcher.Constraint("DistanceY", -1, 1, 24, 3, Q("18.121294 mm")),
])
pad6 = body.newObject("PartDesign::Pad", "Pad005")
pad6.Profile = sketch6
pad6.Length = 4
pad6.Reversed = True

# Sketch on XZ plane
sketch7 = body.newObject("Sketcher::SketchObject", "Sketch006")
sketch7.AttachmentSupport = (doc.getObject("XZ_Plane"), [""])
sketch7.MapMode = "FlatFace"
sketch7.AttachmentOffset = App.Placement(Vector(0, 0, -4), App.Rotation())
add_polygon(sketch7, [(-14.8, -8.1), (-20.5, -8.1), (-23.8, -4.8), (-23.8, 4.8), (-20.5, 8.1), (-14.8, 8.1), (-18.1, 4.8), (-13.3, 0), (-18.1, -4.8)])  # lines 0-8
add_polygon(sketch7, [(14.8, 8.1), (20.5, 8.1), (23.8, 4.8), (23.8, -4.8), (20.5, -8.1), (14.8, -8.1), (18.1, -4.8), (13.3, 0), (18.1, 4.8)])  # lines 9-17
sketch7.addConstraint([
    Sketcher.Constraint("Horizontal", 0),
    Sketcher.Constraint("Vertical", 2),
    Sketcher.Constraint("Horizontal", 4),
    Sketcher.Constraint("Horizontal", 9),
    Sketcher.Constraint("Vertical", 11),
    Sketcher.Constraint("Horizontal", 13),
    Sketcher.Constraint("Symmetric", 0, 2, 9, 2, -1, 1),
    Sketcher.Constraint("Symmetric", 1, 2, 10, 2, -1, 1),
    Sketcher.Constraint("Symmetric", 3, 2, 12, 2, -1, 1),
    Sketcher.Constraint("Symmetric", 3, 2, 9, 2, -2),
    Sketcher.Constraint("Symmetric", 7, 2, 14, 2, -2),
    Sketcher.Constraint("Symmetric", 6, 2, 15, 2, -2),
    Sketcher.Constraint("Symmetric", 5, 2, 16, 2, -2),
    Sketcher.Constraint("Perpendicular", 1, 3),
    Sketcher.Constraint("Parallel", 3, 5),
    Sketcher.Constraint("Perpendicular", 5, 6),
    Sketcher.Constraint("Perpendicular", 6, 7),
    Sketcher.Constraint("Perpendicular", 7, 8),
    Sketcher.Constraint("Perpendicular", 10, 12),
    Sketcher.Constraint("Parallel", 12, 14),
    Sketcher.Constraint("Perpendicular", 14, 15),
    Sketcher.Constraint("Perpendicular", 16, 17),
    Sketcher.Constraint("Horizontal", 1, 2, 7, 2),
    Sketcher.Constraint("Vertical", 5, 2, 7, 2),
    Sketcher.Constraint("DistanceY", 0, 2, -1, 1, Q("8.1 mm")),
    Sketcher.Constraint("Distance", 6, Q("6.76 mm")),
    Sketcher.Constraint("DistanceY", 2, 1, 2, 2, Q("9.56379 mm")),
    Sketcher.Constraint("DistanceX", 6, 2, 10, 2, Q("37.1194 mm")),
    Sketcher.Constraint("DistanceX", 0, 2, 0, 1, Q("5.653148 mm")),
])
pad7 = body.newObject("PartDesign::Pad", "Pad006")
pad7.Profile = sketch7
pad7.Length = 12.2
pad7.Reversed = True

# Sketch on YZ plane
sketch8 = body.newObject("Sketcher::SketchObject", "Sketch007")
sketch8.AttachmentSupport = (doc.getObject("YZ_Plane"), [""])
sketch8.MapMode = "FlatFace"
add_polygon(sketch8, [(14, 6), (8, 6), (8, -6), (14, -6)])  # lines 0-3
sketch8.addConstraint([
    Sketcher.Constraint("Horizontal", 0),
    Sketcher.Constraint("Vertical", 1),
    Sketcher.Constraint("Horizontal", 2),
    Sketcher.Constraint("Vertical", 3),
    Sketcher.Constraint("DistanceY", 1, 2, 1, 1, Q("12.2 mm")),
    Sketcher.Constraint("DistanceX", 0, 2, 0, 1, Q("6.35 mm")),
    Sketcher.Constraint("DistanceX", -1, 1, 2, 2, Q("14.2 mm")),
    Sketcher.Constraint("DistanceY", -1, 1, 0, 2, Q("6.098147 mm")),
])
pocket1 = body.newObject("PartDesign::Pocket", "Pocket")
pocket1.Profile = sketch8
pocket1.Type = "ThroughAll"
pocket1.Midplane = True

doc.recompute()
